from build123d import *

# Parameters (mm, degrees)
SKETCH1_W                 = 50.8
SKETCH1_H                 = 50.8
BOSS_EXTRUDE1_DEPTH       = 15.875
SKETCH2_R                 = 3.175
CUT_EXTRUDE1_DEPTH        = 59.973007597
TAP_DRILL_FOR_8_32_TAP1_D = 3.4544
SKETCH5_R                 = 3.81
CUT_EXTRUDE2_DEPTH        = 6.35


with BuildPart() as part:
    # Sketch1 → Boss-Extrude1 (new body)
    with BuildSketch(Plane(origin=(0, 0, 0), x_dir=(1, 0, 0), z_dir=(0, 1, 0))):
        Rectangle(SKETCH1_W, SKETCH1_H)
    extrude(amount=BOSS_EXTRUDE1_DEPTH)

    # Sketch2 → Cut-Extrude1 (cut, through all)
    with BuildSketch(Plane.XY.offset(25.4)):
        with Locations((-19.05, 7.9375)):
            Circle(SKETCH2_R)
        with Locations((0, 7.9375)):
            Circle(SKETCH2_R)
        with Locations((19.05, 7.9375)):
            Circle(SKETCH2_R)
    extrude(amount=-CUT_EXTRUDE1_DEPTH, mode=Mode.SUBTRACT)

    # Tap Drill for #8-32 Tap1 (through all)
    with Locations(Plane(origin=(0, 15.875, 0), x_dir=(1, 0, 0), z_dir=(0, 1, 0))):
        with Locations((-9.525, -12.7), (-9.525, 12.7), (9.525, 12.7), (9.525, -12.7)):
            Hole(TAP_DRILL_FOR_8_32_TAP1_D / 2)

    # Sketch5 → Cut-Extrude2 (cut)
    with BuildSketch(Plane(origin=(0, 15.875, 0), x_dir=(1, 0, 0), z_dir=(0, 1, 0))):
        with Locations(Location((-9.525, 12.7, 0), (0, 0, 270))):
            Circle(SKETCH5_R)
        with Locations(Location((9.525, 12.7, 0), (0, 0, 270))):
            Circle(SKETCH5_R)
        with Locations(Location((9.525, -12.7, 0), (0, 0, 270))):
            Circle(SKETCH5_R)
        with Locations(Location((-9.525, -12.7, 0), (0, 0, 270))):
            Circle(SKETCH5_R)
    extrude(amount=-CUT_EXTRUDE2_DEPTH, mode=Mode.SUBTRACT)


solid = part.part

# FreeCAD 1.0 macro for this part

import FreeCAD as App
import Part
import Sketcher
Q = App.Units.Quantity

doc = App.newDocument("Part")
params = doc.addObject("Spreadsheet::Sheet", "Params")
for row, (alias, value) in enumerate([
    ("sketch1_width", "2 in"),
    ("pad1_length", "0.625 in"),
    ("sketch2_diameter", "0.25 in"),
    ("sketch3_diameter", "0.136 in"),
    ("hole_diameter", "0.136 in"),
    ("sketch4_diameter", "0.3 in"),
    ("pocket2_length", "0.25 in"),
], start=1):
    params.set(f"A{row}", alias)
    params.set(f"B{row}", "=" + value)
    params.setAlias(f"B{row}", alias)

body = doc.addObject("PartDesign::Body", "Body")

# Sketch on XZ plane
sketch1 = body.newObject("Sketcher::SketchObject", "Sketch")
sketch1.AttachmentSupport = (doc.getObject("XZ_Plane"), [""])
sketch1.MapMode = "FlatFace"
sketch1.addGeometry([
    Part.LineSegment(App.Vector(-25, -25, 0), App.Vector(-25, 25, 0)),
    Part.LineSegment(App.Vector(-25, 25, 0), App.Vector(25, 25, 0)),
    Part.LineSegment(App.Vector(25, 25, 0), App.Vector(25, -25, 0)),
    Part.LineSegment(App.Vector(25, -25, 0), App.Vector(-25, -25, 0)),
], False)
sketch1.addConstraint([
    Sketcher.Constraint("Coincident", 0, 2, 1, 1),
    Sketcher.Constraint("Coincident", 1, 2, 2, 1),
    Sketcher.Constraint("Coincident", 2, 2, 3, 1),
    Sketcher.Constraint("Coincident", 3, 2, 0, 1),
    Sketcher.Constraint("Vertical", 0),
    Sketcher.Constraint("Horizontal", 1),
    Sketcher.Constraint("Vertical", 2),
    Sketcher.Constraint("Horizontal", 3),
    Sketcher.Constraint("Symmetric", 0, 2, 2, 2, -1, 1),
    Sketcher.Constraint("Equal", 3, 0),
    Sketcher.Constraint("DistanceX", 1, 1, 1, 2, Q("2 in")),
])
sketch1.setExpression("Constraints[10]", "Params.sketch1_width")
pad1 = body.newObject("PartDesign::Pad", "Pad")
pad1.Profile = sketch1
pad1.setExpression("Length", "Params.pad1_length")
pad1.Reversed = True

# Sketch on XY plane
sketch2 = body.newObject("Sketcher::SketchObject", "Sketch001")
sketch2.AttachmentSupport = (doc.getObject("XY_Plane"), [""])
sketch2.MapMode = "FlatFace"
sketch2.AttachmentOffset = App.Placement(App.Vector(0, 0, 1 * 25.4), App.Rotation())
sketch2.addGeometry([
    Part.Circle(App.Vector(-19.1, 7.9, 0), App.Vector(0, 0, 1), 3.2),
    Part.Circle(App.Vector(0, 7.9, 0), App.Vector(0, 0, 1), 3.2),
    Part.Circle(App.Vector(19.1, 7.9, 0), App.Vector(0, 0, 1), 3.2),
], False)
sketch2.addConstraint([
    Sketcher.Constraint("Equal", 0, 1),
    Sketcher.Constraint("Equal", 1, 2),
    Sketcher.Constraint("Symmetric", 0, 3, 2, 3, -2),
    Sketcher.Constraint("PointOnObject", 1, 3, -2),
    Sketcher.Constraint("Horizontal", 0, 3, 1, 3),
    Sketcher.Constraint("Diameter", 0, Q("0.25 in")),
    Sketcher.Constraint("DistanceX", 0, 3, 2, 3, Q("1.5 in")),
    Sketcher.Constraint("DistanceY", -1, 1, 0, 3, Q("0.3125 in")),
])
sketch2.setExpression("Constraints[5]", "Params.sketch2_diameter")
pocket1 = body.newObject("PartDesign::Pocket", "Pocket")
pocket1.Profile = sketch2
pocket1.Type = "ThroughAll"

# Sketch on XZ plane
sketch3 = body.newObject("Sketcher::SketchObject", "Sketch002")
sketch3.AttachmentSupport = (doc.getObject("XZ_Plane"), [""])
sketch3.MapMode = "FlatFace"
sketch3.AttachmentOffset = App.Placement(App.Vector(0, 0, -0.625 * 25.4), App.Rotation())
sketch3.addGeometry([
    Part.Circle(App.Vector(-9.5, 12.7, 0), App.Vector(0, 0, 1), 1.7),
    Part.Circle(App.Vector(-9.5, -12.7, 0), App.Vector(0, 0, 1), 1.7),
    Part.Circle(App.Vector(9.5, -12.7, 0), App.Vector(0, 0, 1), 1.7),
    Part.Circle(App.Vector(9.5, 12.7, 0), App.Vector(0, 0, 1), 1.7),
], False)
sketch3.addConstraint([
    Sketcher.Constraint("Equal", 0, 1),
    Sketcher.Constraint("Equal", 1, 2),
    Sketcher.Constraint("Equal", 2, 3),
    Sketcher.Constraint("Symmetric", 0, 3, 2, 3, -1, 1),
    Sketcher.Constraint("Symmetric", 1, 3, 3, 3, -1, 1),
    Sketcher.Constraint("Symmetric", 1, 3, 2, 3, -2),
    Sketcher.Constraint("Diameter", 0, Q("0.136 in")),
    Sketcher.Constraint("DistanceY", 1, 3, 0, 3, Q("1 in")),
    Sketcher.Constraint("DistanceX", 1, 3, 2, 3, Q("0.75 in")),
])
sketch3.setExpression("Constraints[6]", "Params.sketch3_diameter")
doc.recompute()
hole = body.newObject("PartDesign::Hole", "Hole")
hole.Profile = sketch3
hole.ThreadType = "None"
hole.setExpression("Diameter", "Params.hole_diameter")
hole.DepthType = "ThroughAll"
hole.Reversed = True

# Sketch on XZ plane
sketch4 = body.newObject("Sketcher::SketchObject", "Sketch003")
sketch4.AttachmentSupport = (doc.getObject("XZ_Plane"), [""])
sketch4.MapMode = "FlatFace"
sketch4.AttachmentOffset = App.Placement(App.Vector(0, 0, -0.625 * 25.4), App.Rotation())
sketch4.addGeometry([
    Part.Circle(App.Vector(-9.5, -12.7, 0), App.Vector(0, 0, 1), 3.8),
    Part.Circle(App.Vector(9.5, -12.7, 0), App.Vector(0, 0, 1), 3.8),
    Part.Circle(App.Vector(9.5, 12.7, 0), App.Vector(0, 0, 1), 3.8),
    Part.Circle(App.Vector(-9.5, 12.7, 0), App.Vector(0, 0, 1), 3.8),
], False)
sketch4.addConstraint([
    Sketcher.Constraint("Equal", 0, 1),
    Sketcher.Constraint("Equal", 1, 2),
    Sketcher.Constraint("Equal", 2, 3),
    Sketcher.Constraint("Symmetric", 0, 3, 2, 3, -1, 1),
    Sketcher.Constraint("Symmetric", 1, 3, 3, 3, -1, 1),
    Sketcher.Constraint("Symmetric", 0, 3, 1, 3, -2),
    Sketcher.Constraint("Diameter", 0, Q("0.3 in")),
    Sketcher.Constraint("DistanceY", 1, 3, 2, 3, Q("1 in")),
    Sketcher.Constraint("DistanceX", 0, 3, 1, 3, Q("0.75 in")),
])
sketch4.setExpression("Constraints[6]", "Params.sketch4_diameter")
pocket2 = body.newObject("PartDesign::Pocket", "Pocket001")
pocket2.Profile = sketch4
pocket2.setExpression("Length", "Params.pocket2_length")
pocket2.Reversed = True

doc.recompute()
